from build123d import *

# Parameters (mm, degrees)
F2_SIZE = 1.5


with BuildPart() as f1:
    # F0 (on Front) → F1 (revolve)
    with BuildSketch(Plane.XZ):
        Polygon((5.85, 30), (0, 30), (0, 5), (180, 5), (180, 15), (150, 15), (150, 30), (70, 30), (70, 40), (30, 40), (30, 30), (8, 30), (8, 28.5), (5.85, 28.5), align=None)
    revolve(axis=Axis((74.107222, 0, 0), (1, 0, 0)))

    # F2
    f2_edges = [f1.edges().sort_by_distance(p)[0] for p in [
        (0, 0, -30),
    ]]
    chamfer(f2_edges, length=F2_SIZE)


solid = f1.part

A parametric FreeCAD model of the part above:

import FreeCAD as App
import Part
import Sketcher


def edges_at(feature, points):
    """Names of the edges that pass closest to the given points."""
    edges = feature.Shape.Edges
    near = lambda p: min(range(len(edges)), key=lambda i: edges[i].distToShape(Part.Vertex(*p))[0])
    return sorted({f"Edge{near(p) + 1}" for p in points})

doc = App.newDocument("Part")
body = doc.addObject("PartDesign::Body", "Body")

# Sketch on XZ plane
sketch1 = doc.addObject("Sketcher::SketchObject", "Sketch")
body.addObject(sketch1)
sketch1.AttachmentSupport = (doc.XZ_Plane, [""])
sketch1.MapMode = "FlatFace"
sketch1.addGeometry(Part.LineSegment(App.Vector(5.85, 30, 0), App.Vector(0, 30, 0)), False)
sketch1.addGeometry(Part.LineSegment(App.Vector(0, 30, 0), App.Vector(0, 5, 0)), False)
sketch1.addGeometry(Part.LineSegment(App.Vector(0, 5, 0), App.Vector(180, 5, 0)), False)
sketch1.addGeometry(Part.LineSegment(App.Vector(180, 5, 0), App.Vector(180, 15, 0)), False)
sketch1.addGeometry(Part.LineSegment(App.Vector(180, 15, 0), App.Vector(150, 15, 0)), False)
sketch1.addGeometry(Part.LineSegment(App.Vector(150, 15, 0), App.Vector(150, 30, 0)), False)
sketch1.addGeometry(Part.LineSegment(App.Vector(150, 30, 0), App.Vector(70, 30, 0)), False)
sketch1.addGeometry(Part.LineSegment(App.Vector(70, 30, 0), App.Vector(70, 40, 0)), False)
sketch1.addGeometry(Part.LineSegment(App.Vector(70, 40, 0), App.Vector(30, 40, 0)), False)
sketch1.addGeometry(Part.LineSegment(App.Vector(30, 40, 0), App.Vector(30, 30, 0)), False)
sketch1.addGeometry(Part.LineSegment(App.Vector(30, 30, 0), App.Vector(8, 30, 0)), False)
sketch1.addGeometry(Part.LineSegment(App.Vector(8, 30, 0), App.Vector(8, 28.5, 0)), False)
sketch1.addGeometry(Part.LineSegment(App.Vector(8, 28.5, 0), App.Vector(5.85, 28.5, 0)), False)
sketch1.addGeometry(Part.LineSegment(App.Vector(5.85, 28.5, 0), App.Vector(5.85, 30, 0)), False)
sketch1.addConstraint(Sketcher.Constraint("Coincident", 0, 2, 1, 1))
sketch1.addConstraint(Sketcher.Constraint("Coincident", 1, 2, 2, 1))
sketch1.addConstraint(Sketcher.Constraint("Coincident", 2, 2, 3, 1))
sketch1.addConstraint(Sketcher.Constraint("Coincident", 3, 2, 4, 1))
sketch1.addConstraint(Sketcher.Constraint("Coincident", 4, 2, 5, 1))
sketch1.addConstraint(Sketcher.Constraint("Coincident", 5, 2, 6, 1))
sketch1.addConstraint(Sketcher.Constraint("Coincident", 6, 2, 7, 1))
sketch1.addConstraint(Sketcher.Constraint("Coincident", 7, 2, 8, 1))
sketch1.addConstraint(Sketcher.Constraint("Coincident", 8, 2, 9, 1))
sketch1.addConstraint(Sketcher.Constraint("Coincident", 9, 2, 10, 1))
sketch1.addConstraint(Sketcher.Constraint("Coincident", 10, 2, 11, 1))
sketch1.addConstraint(Sketcher.Constraint("Coincident", 11, 2, 12, 1))
sketch1.addConstraint(Sketcher.Constraint("Coincident", 12, 2, 13, 1))
sketch1.addConstraint(Sketcher.Constraint("Coincident", 13, 2, 0, 1))
sketch1.addConstraint(Sketcher.Constraint("Horizontal", 0))
sketch1.addConstraint(Sketcher.Constraint("Vertical", 1))
sketch1.addConstraint(Sketcher.Constraint("Horizontal", 2))
sketch1.addConstraint(Sketcher.Constraint("Vertical", 3))
sketch1.addConstraint(Sketcher.Constraint("Horizontal", 4))
sketch1.addConstraint(Sketcher.Constraint("Vertical", 5))
sketch1.addConstraint(Sketcher.Constraint("Horizontal", 6))
sketch1.addConstraint(Sketcher.Constraint("Vertical", 7))
sketch1.addConstraint(Sketcher.Constraint("Horizontal", 8))
sketch1.addConstraint(Sketcher.Constraint("Vertical", 9))
sketch1.addConstraint(Sketcher.Constraint("Horizontal", 10))
sketch1.addConstraint(Sketcher.Constraint("Vertical", 11))
sketch1.addConstraint(Sketcher.Constraint("Horizontal", 12))
sketch1.addConstraint(Sketcher.Constraint("Vertical", 13))
sketch1.addConstraint(Sketcher.Constraint("PointOnObject", 0, 2, -2))
sketch1.addConstraint(Sketcher.Constraint("Horizontal", 0, 2, 5, 2))
sketch1.addConstraint(Sketcher.Constraint("Horizontal", 6, 2, 9, 2))
sketch1.addConstraint(Sketcher.Constraint("Equal", 3, 7))
sketch1.addConstraint(Sketcher.Constraint("DistanceX", 2, 1, 2, 2, 180.0))
sketch1.addConstraint(Sketcher.Constraint("DistanceX", 4, 2, 4, 1, 30.0))
sketch1.addConstraint(Sketcher.Constraint("DistanceX", 6, 2, 6, 1, 80.0))
sketch1.addConstraint(Sketcher.Constraint("DistanceX", 8, 2, 8, 1, 40.0))
sketch1.addConstraint(Sketcher.Constraint("DistanceX", 10, 2, 10, 1, 22.0))
sketch1.addConstraint(Sketcher.Constraint("DistanceY", 1, 2, 1, 1, 25.0))
sketch1.addConstraint(Sketcher.Constraint("DistanceY", 3, 1, 3, 2, 10.0))
sketch1.addConstraint(Sketcher.Constraint("DistanceY", 11, 2, 11, 1, 1.5))
sketch1.addConstraint(Sketcher.Constraint("DistanceY", -1, 1, 0, 2, 30.0))
sketch1.addConstraint(Sketcher.Constraint("DistanceX", 0, 2, 0, 1, 5.85))
revolution = doc.addObject("PartDesign::Revolution", "Revolution")
body.addObject(revolution)
revolution.Profile = sketch1
revolution.ReferenceAxis = (sketch1, ["H_Axis"])
revolution.Angle = 360
doc.recompute()

chamfer = doc.addObject("PartDesign::Chamfer", "Chamfer")
body.addObject(chamfer)
chamfer.Base = (revolution, edges_at(revolution, [(0, 0, -30)]))
chamfer.Size = 1.5

doc.recompute()
